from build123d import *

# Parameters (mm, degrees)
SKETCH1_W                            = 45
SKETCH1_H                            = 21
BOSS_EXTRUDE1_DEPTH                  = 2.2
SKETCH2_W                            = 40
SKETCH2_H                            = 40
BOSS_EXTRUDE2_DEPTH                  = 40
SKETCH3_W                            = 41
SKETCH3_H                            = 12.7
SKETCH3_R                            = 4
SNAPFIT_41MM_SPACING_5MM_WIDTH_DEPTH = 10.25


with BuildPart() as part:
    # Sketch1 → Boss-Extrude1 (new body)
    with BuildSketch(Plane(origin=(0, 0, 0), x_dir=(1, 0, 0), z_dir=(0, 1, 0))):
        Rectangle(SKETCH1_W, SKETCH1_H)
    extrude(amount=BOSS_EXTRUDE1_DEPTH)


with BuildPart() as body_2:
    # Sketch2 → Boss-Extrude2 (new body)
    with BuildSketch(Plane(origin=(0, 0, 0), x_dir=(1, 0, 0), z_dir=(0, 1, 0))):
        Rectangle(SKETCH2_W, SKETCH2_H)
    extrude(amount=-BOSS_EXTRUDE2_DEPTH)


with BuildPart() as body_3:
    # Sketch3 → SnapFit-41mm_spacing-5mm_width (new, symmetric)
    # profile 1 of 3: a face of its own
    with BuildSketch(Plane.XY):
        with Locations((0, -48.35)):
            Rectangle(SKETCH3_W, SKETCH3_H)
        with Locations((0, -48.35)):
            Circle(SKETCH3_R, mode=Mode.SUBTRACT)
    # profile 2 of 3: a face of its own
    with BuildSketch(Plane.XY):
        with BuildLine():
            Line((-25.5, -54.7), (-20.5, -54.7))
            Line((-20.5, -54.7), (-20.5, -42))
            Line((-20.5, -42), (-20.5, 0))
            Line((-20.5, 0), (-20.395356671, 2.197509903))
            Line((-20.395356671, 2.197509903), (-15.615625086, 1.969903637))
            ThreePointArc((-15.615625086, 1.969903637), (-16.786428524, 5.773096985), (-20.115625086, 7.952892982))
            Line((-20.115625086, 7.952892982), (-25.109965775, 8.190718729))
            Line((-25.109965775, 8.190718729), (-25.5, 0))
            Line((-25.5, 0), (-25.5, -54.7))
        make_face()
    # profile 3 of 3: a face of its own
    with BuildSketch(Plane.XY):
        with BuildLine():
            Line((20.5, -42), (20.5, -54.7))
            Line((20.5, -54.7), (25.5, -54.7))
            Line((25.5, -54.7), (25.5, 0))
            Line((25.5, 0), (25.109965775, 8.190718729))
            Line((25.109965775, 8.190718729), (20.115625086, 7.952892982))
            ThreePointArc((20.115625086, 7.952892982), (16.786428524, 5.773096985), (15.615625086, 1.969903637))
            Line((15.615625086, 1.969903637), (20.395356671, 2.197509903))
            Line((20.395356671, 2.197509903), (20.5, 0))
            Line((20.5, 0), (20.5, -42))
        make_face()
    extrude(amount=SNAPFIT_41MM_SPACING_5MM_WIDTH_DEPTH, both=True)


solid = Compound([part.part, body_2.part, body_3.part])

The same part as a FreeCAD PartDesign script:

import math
import FreeCAD as App
import Part
import Sketcher
from FreeCAD import Vector
Q = App.Units.Quantity

doc = App.newDocument("Part")
body = doc.addObject("PartDesign::Body", "Body")

# Sketch on XZ plane
sketch1 = doc.addObject("Sketcher::SketchObject", "Sketch")
body.addObject(sketch1)
sketch1.AttachmentSupport = (doc.XZ_Plane, [""])
sketch1.MapMode = "FlatFace"
sketch1.addGeometry(Part.LineSegment(Vector(-22.5, -10.5, 0), Vector(-22.5, 10.5, 0)), False)
sketch1.addGeometry(Part.LineSegment(Vector(-22.5, 10.5, 0), Vector(22.5, 10.5, 0)), False)
sketch1.addGeometry(Part.LineSegment(Vector(22.5, 10.5, 0), Vector(22.5, -10.5, 0)), False)
sketch1.addGeometry(Part.LineSegment(Vector(22.5, -10.5, 0), Vector(-22.5, -10.5, 0)), False)
sketch1.addConstraint(Sketcher.Constraint("Coincident", 0, 2, 1, 1))
sketch1.addConstraint(Sketcher.Constraint("Coincident", 1, 2, 2, 1))
sketch1.addConstraint(Sketcher.Constraint("Coincident", 2, 2, 3, 1))
sketch1.addConstraint(Sketcher.Constraint("Coincident", 3, 2, 0, 1))
sketch1.addConstraint(Sketcher.Constraint("Vertical", 0))
sketch1.addConstraint(Sketcher.Constraint("Horizontal", 1))
sketch1.addConstraint(Sketcher.Constraint("Vertical", 2))
sketch1.addConstraint(Sketcher.Constraint("Horizontal", 3))
sketch1.addConstraint(Sketcher.Constraint("Symmetric", 0, 2, 2, 2, -1, 1))
sketch1.addConstraint(Sketcher.Constraint("DistanceX", 1, 1, 1, 2, Q("45 mm")))
sketch1.addConstraint(Sketcher.Constraint("DistanceY", 0, 1, 0, 2, Q("21 mm")))
pad1 = doc.addObject("PartDesign::Pad", "Pad")
body.addObject(pad1)
pad1.Profile = sketch1
pad1.Length = 2.2
pad1.Reversed = True
body2 = doc.addObject("PartDesign::Body", "Body001")

# Sketch on XZ plane
sketch2 = doc.addObject("Sketcher::SketchObject", "Sketch001")
body2.addObject(sketch2)
sketch2.AttachmentSupport = (doc.getObject("XZ_Plane001"), [""])
sketch2.MapMode = "FlatFace"
sketch2.addGeometry(Part.LineSegment(Vector(-20, -20, 0), Vector(-20, 20, 0)), False)
sketch2.addGeometry(Part.LineSegment(Vector(-20, 20, 0), Vector(20, 20, 0)), False)
sketch2.addGeometry(Part.LineSegment(Vector(20, 20, 0), Vector(20, -20, 0)), False)
sketch2.addGeometry(Part.LineSegment(Vector(20, -20, 0), Vector(-20, -20, 0)), False)
sketch2.addConstraint(Sketcher.Constraint("Coincident", 0, 2, 1, 1))
sketch2.addConstraint(Sketcher.Constraint("Coincident", 1, 2, 2, 1))
sketch2.addConstraint(Sketcher.Constraint("Coincident", 2, 2, 3, 1))
sketch2.addConstraint(Sketcher.Constraint("Coincident", 3, 2, 0, 1))
sketch2.addConstraint(Sketcher.Constraint("Vertical", 0))
sketch2.addConstraint(Sketcher.Constraint("Horizontal", 1))
sketch2.addConstraint(Sketcher.Constraint("Vertical", 2))
sketch2.addConstraint(Sketcher.Constraint("Horizontal", 3))
sketch2.addConstraint(Sketcher.Constraint("Symmetric", 0, 2, 2, 2, -1, 1))
sketch2.addConstraint(Sketcher.Constraint("Equal", 3, 0))
sketch2.addConstraint(Sketcher.Constraint("DistanceX", 1, 1, 1, 2, Q("40 mm")))
pad2 = doc.addObject("PartDesign::Pad", "Pad001")
body2.addObject(pad2)
pad2.Profile = sketch2
pad2.Length = 40
body3 = doc.addObject("PartDesign::Body", "Body002")

# Sketch on XY plane
sketch3 = doc.addObject("Sketcher::SketchObject", "Sketch002")
body3.addObject(sketch3)
sketch3.AttachmentSupport = (doc.getObject("XY_Plane002"), [""])
sketch3.MapMode = "FlatFace"
sketch3.addGeometry(Part.LineSegment(Vector(25.5, -54.7, 0), Vector(25.5, 0, 0)), False)
sketch3.addGeometry(Part.LineSegment(Vector(25.5, 0, 0), Vector(25.109966, 8.190719, 0)), False)
sketch3.addGeometry(Part.LineSegment(Vector(25.109966, 8.190719, 0), Vector(20.115625, 7.952893, 0)), False)
sketch3.addGeometry(Part.ArcOfCircle(Part.Circle(Vector(21.472185, 2.248787, 0), Vector(0, 0, 1), 5.863197), math.radians(103.377668), math.radians(182.726311)), False)
sketch3.addGeometry(Part.LineSegment(Vector(15.615625, 1.969904, 0), Vector(20.395357, 2.19751, 0)), False)
sketch3.addGeometry(Part.LineSegment(Vector(20.395357, 2.19751, 0), Vector(20.5, 0, 0)), False)
sketch3.addGeometry(Part.LineSegment(Vector(20.5, 0, 0), Vector(20.5, -42, 0)), False)
sketch3.addGeometry(Part.LineSegment(Vector(20.5, -42, 0), Vector(-20.5, -42, 0)), False)
sketch3.addGeometry(Part.LineSegment(Vector(-20.5, -42, 0), Vector(-20.5, 0, 0)), False)
sketch3.addGeometry(Part.LineSegment(Vector(-20.5, 0, 0), Vector(-20.395357, 2.19751, 0)), False)
sketch3.addGeometry(Part.LineSegment(Vector(-20.395357, 2.19751, 0), Vector(-15.615625, 1.969904, 0)), False)
sketch3.addGeometry(Part.ArcOfCircle(Part.Circle(Vector(-21.472185, 2.248787, 0), Vector(0, 0, 1), 5.863197), math.radians(-2.726311), math.radians(76.622332)), False)
sketch3.addGeometry(Part.LineSegment(Vector(-20.115625, 7.952893, 0), Vector(-25.109966, 8.190719, 0)), False)
sketch3.addGeometry(Part.LineSegment(Vector(-25.109966, 8.190719, 0), Vector(-25.5, 0, 0)), False)
sketch3.addGeometry(Part.LineSegment(Vector(-25.5, 0, 0), Vector(-25.5, -54.7, 0)), False)
sketch3.addGeometry(Part.LineSegment(Vector(-25.5, -54.7, 0), Vector(25.5, -54.7, 0)), False)
sketch3.addGeometry(Part.Circle(Vector(0, -48.35, 0), Vector(0, 0, 1), 4), False)
sketch3.addConstraint(Sketcher.Constraint("Coincident", 0, 2, 1, 1))
sketch3.addConstraint(Sketcher.Constraint("Coincident", 1, 2, 2, 1))
sketch3.addConstraint(Sketcher.Constraint("Coincident", 2, 2, 3, 1))
sketch3.addConstraint(Sketcher.Constraint("Coincident", 3, 2, 4, 1))
sketch3.addConstraint(Sketcher.Constraint("Coincident", 4, 2, 5, 1))
sketch3.addConstraint(Sketcher.Constraint("Coincident", 5, 2, 6, 1))
sketch3.addConstraint(Sketcher.Constraint("Coincident", 6, 2, 7, 1))
sketch3.addConstraint(Sketcher.Constraint("Coincident", 7, 2, 8, 1))
sketch3.addConstraint(Sketcher.Constraint("Coincident", 8, 2, 9, 1))
sketch3.addConstraint(Sketcher.Constraint("Coincident", 9, 2, 10, 1))
sketch3.addConstraint(Sketcher.Constraint("Coincident", 10, 2, 11, 1))
sketch3.addConstraint(Sketcher.Constraint("Coincident", 11, 2, 12, 1))
sketch3.addConstraint(Sketcher.Constraint("Coincident", 12, 2, 13, 1))
sketch3.addConstraint(Sketcher.Constraint("Coincident", 13, 2, 14, 1))
sketch3.addConstraint(Sketcher.Constraint("Coincident", 14, 2, 15, 1))
sketch3.addConstraint(Sketcher.Constraint("Coincident", 15, 2, 0, 1))
sketch3.addConstraint(Sketcher.Constraint("Vertical", 0))
sketch3.addConstraint(Sketcher.Constraint("Vertical", 6))
sketch3.addConstraint(Sketcher.Constraint("Horizontal", 7))
sketch3.addConstraint(Sketcher.Constraint("Vertical", 8))
sketch3.addConstraint(Sketcher.Constraint("Vertical", 14))
sketch3.addConstraint(Sketcher.Constraint("Horizontal", 15))
sketch3.addConstraint(Sketcher.Constraint("Equal", 3, 11))
sketch3.addConstraint(Sketcher.Constraint("Symmetric", 5, 2, 8, 2, -1, 1))
sketch3.addConstraint(Sketcher.Constraint("Symmetric", 0, 2, 13, 2, -1, 1))
sketch3.addConstraint(Sketcher.Constraint("Symmetric", 3, 3, 11, 3, -2))
sketch3.addConstraint(Sketcher.Constraint("Symmetric", 4, 2, 9, 2, -2))
sketch3.addConstraint(Sketcher.Constraint("Symmetric", 1, 2, 12, 2, -2))
sketch3.addConstraint(Sketcher.Constraint("PointOnObject", 16, 3, -2))
sketch3.addConstraint(Sketcher.Constraint("PointOnObject", 0, 2, -1))
sketch3.addConstraint(Sketcher.Constraint("PointOnObject", 5, 2, -1))
sketch3.addConstraint(Sketcher.Constraint("Perpendicular", 1, 2))
sketch3.addConstraint(Sketcher.Constraint("Parallel", 2, 4))
sketch3.addConstraint(Sketcher.Constraint("Perpendicular", 4, 5))
sketch3.addConstraint(Sketcher.Constraint("Perpendicular", 9, 10))
sketch3.addConstraint(Sketcher.Constraint("Parallel", 10, 12))
sketch3.addConstraint(Sketcher.Constraint("Diameter", 16, Q("8 mm")))
sketch3.addConstraint(Sketcher.Constraint("DistanceX", 7, 2, 7, 1, Q("41 mm")))
sketch3.addConstraint(Sketcher.Constraint("DistanceX", 15, 1, 15, 2, Q("51 mm")))
sketch3.addConstraint(Sketcher.Constraint("DistanceY", 6, 2, 6, 1, Q("42 mm")))
sketch3.addConstraint(Sketcher.Constraint("Distance", 2, Q("5 mm")))
sketch3.addConstraint(Sketcher.Constraint("DistanceY", 0, 1, 0, 2, Q("54.7 mm")))
sketch3.addConstraint(Sketcher.Constraint("Distance", 1, Q("8.2 mm")))
sketch3.addConstraint(Sketcher.Constraint("Distance", 5, Q("2.2 mm")))
sketch3.addConstraint(Sketcher.Constraint("DistanceX", 3, 2, 2, 2, Q("4.5 mm")))
sketch3.addConstraint(Sketcher.Constraint("DistanceY", 16, 3, -1, 1, Q("48.35 mm")))
sketch3.addConstraint(Sketcher.Constraint("Radius", 3, Q("5.863197 mm")))
sketch3.addConstraint(Sketcher.Constraint("DistanceY", -1, 1, 1, 2, Q("8.190719 mm")))
pad3 = doc.addObject("PartDesign::Pad", "Pad002")
body3.addObject(pad3)
pad3.Profile = sketch3
pad3.Length = 20.5
pad3.Midplane = True

doc.recompute()
